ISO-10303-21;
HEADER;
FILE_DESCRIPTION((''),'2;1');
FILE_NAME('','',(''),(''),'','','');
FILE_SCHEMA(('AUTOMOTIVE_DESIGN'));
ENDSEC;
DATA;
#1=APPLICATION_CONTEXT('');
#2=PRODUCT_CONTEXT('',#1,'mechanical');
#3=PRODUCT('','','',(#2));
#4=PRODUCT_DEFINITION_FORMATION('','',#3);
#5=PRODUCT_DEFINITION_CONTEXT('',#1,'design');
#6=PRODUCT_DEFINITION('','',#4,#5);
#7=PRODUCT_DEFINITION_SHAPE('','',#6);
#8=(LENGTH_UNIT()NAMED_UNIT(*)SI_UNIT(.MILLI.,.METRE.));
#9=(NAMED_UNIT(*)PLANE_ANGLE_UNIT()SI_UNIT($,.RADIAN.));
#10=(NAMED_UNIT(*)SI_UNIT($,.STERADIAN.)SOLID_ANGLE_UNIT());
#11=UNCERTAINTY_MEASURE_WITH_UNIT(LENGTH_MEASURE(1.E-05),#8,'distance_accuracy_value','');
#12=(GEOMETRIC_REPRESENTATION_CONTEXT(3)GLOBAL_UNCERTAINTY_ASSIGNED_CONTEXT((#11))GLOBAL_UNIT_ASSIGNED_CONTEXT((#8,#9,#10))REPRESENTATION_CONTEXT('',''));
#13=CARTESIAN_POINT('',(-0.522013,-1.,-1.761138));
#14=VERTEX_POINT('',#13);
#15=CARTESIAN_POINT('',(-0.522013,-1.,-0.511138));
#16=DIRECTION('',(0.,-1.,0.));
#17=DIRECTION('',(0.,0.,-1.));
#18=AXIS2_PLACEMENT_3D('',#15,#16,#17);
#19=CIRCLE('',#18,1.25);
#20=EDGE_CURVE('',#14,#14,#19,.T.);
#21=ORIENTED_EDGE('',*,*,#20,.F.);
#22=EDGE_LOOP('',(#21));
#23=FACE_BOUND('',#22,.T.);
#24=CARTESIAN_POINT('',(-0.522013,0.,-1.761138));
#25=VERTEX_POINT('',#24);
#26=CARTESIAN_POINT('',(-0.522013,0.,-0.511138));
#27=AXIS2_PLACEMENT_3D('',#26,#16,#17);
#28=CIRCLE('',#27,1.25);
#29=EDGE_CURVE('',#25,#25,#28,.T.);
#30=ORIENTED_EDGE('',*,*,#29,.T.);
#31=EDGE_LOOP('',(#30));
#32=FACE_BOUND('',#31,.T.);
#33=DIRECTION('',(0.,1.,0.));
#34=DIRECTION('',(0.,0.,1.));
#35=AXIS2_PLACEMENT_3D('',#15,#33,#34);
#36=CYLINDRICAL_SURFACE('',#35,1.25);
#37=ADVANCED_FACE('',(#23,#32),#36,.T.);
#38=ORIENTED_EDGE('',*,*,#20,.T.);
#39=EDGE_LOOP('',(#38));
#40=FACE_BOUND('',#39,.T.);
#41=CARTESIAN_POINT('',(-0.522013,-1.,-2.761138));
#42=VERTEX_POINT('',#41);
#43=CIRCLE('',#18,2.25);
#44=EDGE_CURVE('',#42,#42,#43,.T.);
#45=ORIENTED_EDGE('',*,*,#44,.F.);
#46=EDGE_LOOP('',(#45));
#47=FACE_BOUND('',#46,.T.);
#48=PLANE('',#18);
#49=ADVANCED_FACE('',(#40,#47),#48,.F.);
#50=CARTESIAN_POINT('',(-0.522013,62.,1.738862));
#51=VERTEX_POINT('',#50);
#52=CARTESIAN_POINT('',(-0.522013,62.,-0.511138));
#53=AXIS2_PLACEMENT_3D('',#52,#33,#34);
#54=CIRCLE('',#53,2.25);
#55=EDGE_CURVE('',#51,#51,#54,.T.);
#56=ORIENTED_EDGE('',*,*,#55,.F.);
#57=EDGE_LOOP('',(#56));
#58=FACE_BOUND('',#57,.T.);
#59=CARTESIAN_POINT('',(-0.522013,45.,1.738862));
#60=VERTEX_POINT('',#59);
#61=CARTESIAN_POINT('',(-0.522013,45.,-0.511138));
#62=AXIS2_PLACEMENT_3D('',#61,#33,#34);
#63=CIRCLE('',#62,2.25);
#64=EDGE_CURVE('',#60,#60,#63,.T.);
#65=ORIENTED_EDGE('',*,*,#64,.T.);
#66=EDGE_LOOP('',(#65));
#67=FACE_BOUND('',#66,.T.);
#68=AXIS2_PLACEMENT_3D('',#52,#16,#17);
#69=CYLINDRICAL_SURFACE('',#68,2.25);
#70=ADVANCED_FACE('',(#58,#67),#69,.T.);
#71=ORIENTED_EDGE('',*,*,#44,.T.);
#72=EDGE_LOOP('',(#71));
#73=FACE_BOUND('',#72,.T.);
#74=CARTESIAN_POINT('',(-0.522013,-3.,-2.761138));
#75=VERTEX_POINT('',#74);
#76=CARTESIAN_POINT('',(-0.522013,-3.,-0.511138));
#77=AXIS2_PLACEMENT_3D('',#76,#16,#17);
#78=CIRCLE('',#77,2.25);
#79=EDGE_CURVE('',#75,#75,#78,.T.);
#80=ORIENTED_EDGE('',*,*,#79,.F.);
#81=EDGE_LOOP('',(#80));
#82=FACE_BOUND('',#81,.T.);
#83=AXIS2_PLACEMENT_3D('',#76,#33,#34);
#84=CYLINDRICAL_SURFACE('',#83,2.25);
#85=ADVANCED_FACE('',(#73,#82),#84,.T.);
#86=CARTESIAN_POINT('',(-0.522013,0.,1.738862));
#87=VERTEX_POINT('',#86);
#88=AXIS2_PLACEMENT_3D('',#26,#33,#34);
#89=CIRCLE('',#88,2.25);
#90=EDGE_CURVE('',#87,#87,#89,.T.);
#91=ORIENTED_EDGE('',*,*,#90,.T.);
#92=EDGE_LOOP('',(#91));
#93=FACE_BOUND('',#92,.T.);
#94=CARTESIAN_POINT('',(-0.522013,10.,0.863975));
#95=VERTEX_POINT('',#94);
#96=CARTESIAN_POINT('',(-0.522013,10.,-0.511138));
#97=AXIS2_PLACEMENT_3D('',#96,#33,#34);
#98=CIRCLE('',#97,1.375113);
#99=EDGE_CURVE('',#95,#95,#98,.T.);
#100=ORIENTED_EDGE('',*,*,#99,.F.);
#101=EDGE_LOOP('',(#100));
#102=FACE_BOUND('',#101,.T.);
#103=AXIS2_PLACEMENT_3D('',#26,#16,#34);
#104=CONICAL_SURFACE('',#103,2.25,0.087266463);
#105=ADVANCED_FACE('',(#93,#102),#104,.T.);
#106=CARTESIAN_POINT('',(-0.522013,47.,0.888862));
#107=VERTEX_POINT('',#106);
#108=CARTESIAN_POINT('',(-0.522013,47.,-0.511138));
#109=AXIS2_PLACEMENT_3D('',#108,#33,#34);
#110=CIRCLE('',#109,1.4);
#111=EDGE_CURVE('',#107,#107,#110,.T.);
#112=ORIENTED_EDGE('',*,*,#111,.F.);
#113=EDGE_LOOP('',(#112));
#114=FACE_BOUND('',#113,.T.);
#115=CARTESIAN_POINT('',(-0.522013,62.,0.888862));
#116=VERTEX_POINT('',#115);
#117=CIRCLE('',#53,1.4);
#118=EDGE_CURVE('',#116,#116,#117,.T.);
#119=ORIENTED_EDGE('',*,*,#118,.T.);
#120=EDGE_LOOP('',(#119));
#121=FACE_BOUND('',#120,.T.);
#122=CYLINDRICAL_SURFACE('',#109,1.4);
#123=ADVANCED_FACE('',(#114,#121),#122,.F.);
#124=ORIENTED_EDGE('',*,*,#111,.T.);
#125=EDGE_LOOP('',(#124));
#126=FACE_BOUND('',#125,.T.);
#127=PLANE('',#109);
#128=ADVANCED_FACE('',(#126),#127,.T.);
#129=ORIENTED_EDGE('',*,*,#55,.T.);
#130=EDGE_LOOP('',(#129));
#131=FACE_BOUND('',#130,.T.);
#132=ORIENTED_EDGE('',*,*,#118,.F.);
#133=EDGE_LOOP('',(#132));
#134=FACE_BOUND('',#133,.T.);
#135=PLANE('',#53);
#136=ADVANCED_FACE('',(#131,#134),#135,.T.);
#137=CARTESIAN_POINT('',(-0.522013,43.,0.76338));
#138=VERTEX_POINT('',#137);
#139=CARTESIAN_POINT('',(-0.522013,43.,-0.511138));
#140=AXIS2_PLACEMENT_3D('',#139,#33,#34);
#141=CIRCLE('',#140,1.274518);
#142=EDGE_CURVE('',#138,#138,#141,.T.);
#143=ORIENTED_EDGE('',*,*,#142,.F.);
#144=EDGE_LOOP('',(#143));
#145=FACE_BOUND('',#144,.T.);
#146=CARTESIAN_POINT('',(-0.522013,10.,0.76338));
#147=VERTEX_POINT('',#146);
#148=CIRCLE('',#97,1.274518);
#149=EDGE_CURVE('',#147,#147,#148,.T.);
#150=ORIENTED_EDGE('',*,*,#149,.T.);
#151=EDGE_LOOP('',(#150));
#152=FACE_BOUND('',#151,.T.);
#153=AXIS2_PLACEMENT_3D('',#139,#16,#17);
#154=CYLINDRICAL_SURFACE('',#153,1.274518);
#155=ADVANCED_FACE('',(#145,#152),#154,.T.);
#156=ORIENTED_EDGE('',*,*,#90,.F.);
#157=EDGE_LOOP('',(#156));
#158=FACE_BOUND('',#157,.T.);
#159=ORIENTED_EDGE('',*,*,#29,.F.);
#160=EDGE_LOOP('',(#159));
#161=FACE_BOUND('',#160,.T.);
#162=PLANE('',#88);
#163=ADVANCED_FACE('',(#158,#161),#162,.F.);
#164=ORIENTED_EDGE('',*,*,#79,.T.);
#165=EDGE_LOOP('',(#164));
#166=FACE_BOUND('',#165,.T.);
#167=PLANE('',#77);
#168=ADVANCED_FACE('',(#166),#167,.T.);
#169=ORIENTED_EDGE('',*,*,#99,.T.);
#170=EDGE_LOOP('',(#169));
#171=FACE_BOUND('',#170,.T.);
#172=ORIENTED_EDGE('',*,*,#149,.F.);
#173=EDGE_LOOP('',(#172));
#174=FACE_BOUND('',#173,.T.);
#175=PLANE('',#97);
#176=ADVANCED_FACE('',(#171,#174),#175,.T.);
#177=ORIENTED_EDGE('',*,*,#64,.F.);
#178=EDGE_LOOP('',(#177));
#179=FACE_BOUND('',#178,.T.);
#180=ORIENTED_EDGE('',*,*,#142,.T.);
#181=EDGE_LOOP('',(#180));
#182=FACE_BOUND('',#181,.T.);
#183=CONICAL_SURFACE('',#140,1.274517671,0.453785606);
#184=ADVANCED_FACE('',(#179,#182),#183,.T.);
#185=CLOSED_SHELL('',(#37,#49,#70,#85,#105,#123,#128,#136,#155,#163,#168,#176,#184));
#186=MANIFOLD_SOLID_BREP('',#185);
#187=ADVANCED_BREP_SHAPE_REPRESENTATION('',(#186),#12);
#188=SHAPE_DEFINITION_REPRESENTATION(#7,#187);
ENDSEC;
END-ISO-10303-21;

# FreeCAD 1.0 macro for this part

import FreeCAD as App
import Part
import Sketcher
from FreeCAD import Vector

doc = App.newDocument("Part")
body = doc.addObject("PartDesign::Body", "Body")

# Sketch on XZ plane
sketch1 = body.newObject("Sketcher::SketchObject", "Sketch")
sketch1.AttachmentSupport = (doc.getObject("XZ_Plane"), [""])
sketch1.MapMode = "FlatFace"
sketch1.addGeometry(Part.Circle(Vector(-0.5, -0.5, 0), Vector(0, 0, 1), 2.2), False)
sketch1.addConstraint([
    Sketcher.Constraint("Diameter", 0, 4.5),
    Sketcher.Constraint("DistanceY", 0, 3, -1, 1, 0.511138),
    Sketcher.Constraint("DistanceX", 0, 3, -1, 1, 0.522013),
])
pad1 = body.newObject("PartDesign::Pad", "Pad")
pad1.Profile = sketch1
pad1.Length = 10
pad1.Reversed = True
pad1.TaperAngle = -5

# Sketch on XZ plane
sketch2 = body.newObject("Sketcher::SketchObject", "Sketch001")
sketch2.AttachmentSupport = (doc.getObject("XZ_Plane"), [""])
sketch2.MapMode = "FlatFace"
sketch2.addGeometry(Part.Circle(Vector(-0.5, -0.5, 0), Vector(0, 0, 1), 1.4), False)
sketch2.addConstraint([
    Sketcher.Constraint("Diameter", 0, 2.75),
    Sketcher.Constraint("DistanceY", 0, 3, -1, 1, 0.511138),
    Sketcher.Constraint("DistanceX", 0, 3, -1, 1, 0.522013),
])
pad2 = body.newObject("PartDesign::Pad", "Pad001")
pad2.Profile = sketch2
pad2.Length = 1
pad2.Reversed = True

# Sketch on XZ plane
sketch3 = body.newObject("Sketcher::SketchObject", "Sketch002")
sketch3.AttachmentSupport = (doc.getObject("XZ_Plane"), [""])
sketch3.MapMode = "FlatFace"
sketch3.addGeometry(Part.Circle(Vector(-0.5, -0.5, 0), Vector(0, 0, 1), 1.2), False)
sketch3.addConstraint([
    Sketcher.Constraint("Diameter", 0, 2.5),
    Sketcher.Constraint("DistanceY", 0, 3, -1, 1, 0.511138),
    Sketcher.Constraint("DistanceX", 0, 3, -1, 1, 0.522013),
])
pad3 = body.newObject("PartDesign::Pad", "Pad002")
pad3.Profile = sketch3
pad3.Length = 1

# Sketch on XZ plane
sketch4 = body.newObject("Sketcher::SketchObject", "Sketch003")
sketch4.AttachmentSupport = (doc.getObject("XZ_Plane"), [""])
sketch4.MapMode = "FlatFace"
sketch4.AttachmentOffset = App.Placement(Vector(0, 0, 1), App.Rotation())
sketch4.addGeometry(Part.Circle(Vector(-0.5, -0.5, 0), Vector(0, 0, 1), 2.2), False)
sketch4.addConstraint([
    Sketcher.Constraint("Diameter", 0, 4.5),
    Sketcher.Constraint("DistanceY", 0, 3, -1, 1, 0.511138),
    Sketcher.Constraint("DistanceX", 0, 3, -1, 1, 0.522013),
])
pad4 = body.newObject("PartDesign::Pad", "Pad003")
pad4.Profile = sketch4
pad4.Length = 2

# Sketch on XZ plane
sketch5 = body.newObject("Sketcher::SketchObject", "Sketch004")
sketch5.AttachmentSupport = (doc.getObject("XZ_Plane"), [""])
sketch5.MapMode = "FlatFace"
sketch5.AttachmentOffset = App.Placement(Vector(0, 0, -10), App.Rotation())
sketch5.addGeometry(Part.Circle(Vector(-0.5, -0.5, 0), Vector(0, 0, 1), 1.3), False)
sketch5.addConstraint([
    Sketcher.Constraint("Diameter", 0, 2.549035),
    Sketcher.Constraint("DistanceY", 0, 3, -1, 1, 0.511138),
    Sketcher.Constraint("DistanceX", 0, 3, -1, 1, 0.522013),
])
pad5 = body.newObject("PartDesign::Pad", "Pad004")
pad5.Profile = sketch5
pad5.Length = 33
pad5.Reversed = True

# Sketch on XZ plane
sketch6 = body.newObject("Sketcher::SketchObject", "Sketch005")
sketch6.AttachmentSupport = (doc.getObject("XZ_Plane"), [""])
sketch6.MapMode = "FlatFace"
sketch6.AttachmentOffset = App.Placement(Vector(0, 0, -43), App.Rotation())
sketch6.addGeometry(Part.Circle(Vector(-0.5, -0.5, 0), Vector(0, 0, 1), 1.3), False)
sketch6.addConstraint([
    Sketcher.Constraint("Diameter", 0, 2.549035),
    Sketcher.Constraint("DistanceY", 0, 3, -1, 1, 0.511138),
    Sketcher.Constraint("DistanceX", 0, 3, -1, 1, 0.522013),
])
pad6 = body.newObject("PartDesign::Pad", "Pad005")
pad6.Profile = sketch6
pad6.Length = 2
pad6.Reversed = True
pad6.TaperAngle = 26

# Sketch on XZ plane
sketch7 = body.newObject("Sketcher::SketchObject", "Sketch006")
sketch7.AttachmentSupport = (doc.getObject("XZ_Plane"), [""])
sketch7.MapMode = "FlatFace"
sketch7.AttachmentOffset = App.Placement(Vector(0, 0, -45), App.Rotation())
sketch7.addGeometry(Part.Circle(Vector(-0.5, -0.5, 0), Vector(0, 0, 1), 2.2), False)
sketch7.addConstraint([
    Sketcher.Constraint("Diameter", 0, 4.5),
    Sketcher.Constraint("DistanceY", 0, 3, -1, 1, 0.511138),
    Sketcher.Constraint("DistanceX", 0, 3, -1, 1, 0.522013),
])
pad7 = body.newObject("PartDesign::Pad", "Pad006")
pad7.Profile = sketch7
pad7.Length = 17
pad7.Reversed = True

# Sketch on XZ plane
sketch8 = body.newObject("Sketcher::SketchObject", "Sketch007")
sketch8.AttachmentSupport = (doc.getObject("XZ_Plane"), [""])
sketch8.MapMode = "FlatFace"
sketch8.AttachmentOffset = App.Placement(Vector(0, 0, -62), App.Rotation())
sketch8.addGeometry(Part.Circle(Vector(-0.5, -0.5, 0), Vector(0, 0, 1), 1.4), False)
sketch8.addConstraint([
    Sketcher.Constraint("Diameter", 0, 2.8),
    Sketcher.Constraint("DistanceY", 0, 3, -1, 1, 0.511138),
    Sketcher.Constraint("DistanceX", 0, 3, -1, 1, 0.522013),
])
pocket1 = body.newObject("PartDesign::Pocket", "Pocket")
pocket1.Profile = sketch8
pocket1.Length = 15
pocket1.Reversed = True

doc.recompute()
